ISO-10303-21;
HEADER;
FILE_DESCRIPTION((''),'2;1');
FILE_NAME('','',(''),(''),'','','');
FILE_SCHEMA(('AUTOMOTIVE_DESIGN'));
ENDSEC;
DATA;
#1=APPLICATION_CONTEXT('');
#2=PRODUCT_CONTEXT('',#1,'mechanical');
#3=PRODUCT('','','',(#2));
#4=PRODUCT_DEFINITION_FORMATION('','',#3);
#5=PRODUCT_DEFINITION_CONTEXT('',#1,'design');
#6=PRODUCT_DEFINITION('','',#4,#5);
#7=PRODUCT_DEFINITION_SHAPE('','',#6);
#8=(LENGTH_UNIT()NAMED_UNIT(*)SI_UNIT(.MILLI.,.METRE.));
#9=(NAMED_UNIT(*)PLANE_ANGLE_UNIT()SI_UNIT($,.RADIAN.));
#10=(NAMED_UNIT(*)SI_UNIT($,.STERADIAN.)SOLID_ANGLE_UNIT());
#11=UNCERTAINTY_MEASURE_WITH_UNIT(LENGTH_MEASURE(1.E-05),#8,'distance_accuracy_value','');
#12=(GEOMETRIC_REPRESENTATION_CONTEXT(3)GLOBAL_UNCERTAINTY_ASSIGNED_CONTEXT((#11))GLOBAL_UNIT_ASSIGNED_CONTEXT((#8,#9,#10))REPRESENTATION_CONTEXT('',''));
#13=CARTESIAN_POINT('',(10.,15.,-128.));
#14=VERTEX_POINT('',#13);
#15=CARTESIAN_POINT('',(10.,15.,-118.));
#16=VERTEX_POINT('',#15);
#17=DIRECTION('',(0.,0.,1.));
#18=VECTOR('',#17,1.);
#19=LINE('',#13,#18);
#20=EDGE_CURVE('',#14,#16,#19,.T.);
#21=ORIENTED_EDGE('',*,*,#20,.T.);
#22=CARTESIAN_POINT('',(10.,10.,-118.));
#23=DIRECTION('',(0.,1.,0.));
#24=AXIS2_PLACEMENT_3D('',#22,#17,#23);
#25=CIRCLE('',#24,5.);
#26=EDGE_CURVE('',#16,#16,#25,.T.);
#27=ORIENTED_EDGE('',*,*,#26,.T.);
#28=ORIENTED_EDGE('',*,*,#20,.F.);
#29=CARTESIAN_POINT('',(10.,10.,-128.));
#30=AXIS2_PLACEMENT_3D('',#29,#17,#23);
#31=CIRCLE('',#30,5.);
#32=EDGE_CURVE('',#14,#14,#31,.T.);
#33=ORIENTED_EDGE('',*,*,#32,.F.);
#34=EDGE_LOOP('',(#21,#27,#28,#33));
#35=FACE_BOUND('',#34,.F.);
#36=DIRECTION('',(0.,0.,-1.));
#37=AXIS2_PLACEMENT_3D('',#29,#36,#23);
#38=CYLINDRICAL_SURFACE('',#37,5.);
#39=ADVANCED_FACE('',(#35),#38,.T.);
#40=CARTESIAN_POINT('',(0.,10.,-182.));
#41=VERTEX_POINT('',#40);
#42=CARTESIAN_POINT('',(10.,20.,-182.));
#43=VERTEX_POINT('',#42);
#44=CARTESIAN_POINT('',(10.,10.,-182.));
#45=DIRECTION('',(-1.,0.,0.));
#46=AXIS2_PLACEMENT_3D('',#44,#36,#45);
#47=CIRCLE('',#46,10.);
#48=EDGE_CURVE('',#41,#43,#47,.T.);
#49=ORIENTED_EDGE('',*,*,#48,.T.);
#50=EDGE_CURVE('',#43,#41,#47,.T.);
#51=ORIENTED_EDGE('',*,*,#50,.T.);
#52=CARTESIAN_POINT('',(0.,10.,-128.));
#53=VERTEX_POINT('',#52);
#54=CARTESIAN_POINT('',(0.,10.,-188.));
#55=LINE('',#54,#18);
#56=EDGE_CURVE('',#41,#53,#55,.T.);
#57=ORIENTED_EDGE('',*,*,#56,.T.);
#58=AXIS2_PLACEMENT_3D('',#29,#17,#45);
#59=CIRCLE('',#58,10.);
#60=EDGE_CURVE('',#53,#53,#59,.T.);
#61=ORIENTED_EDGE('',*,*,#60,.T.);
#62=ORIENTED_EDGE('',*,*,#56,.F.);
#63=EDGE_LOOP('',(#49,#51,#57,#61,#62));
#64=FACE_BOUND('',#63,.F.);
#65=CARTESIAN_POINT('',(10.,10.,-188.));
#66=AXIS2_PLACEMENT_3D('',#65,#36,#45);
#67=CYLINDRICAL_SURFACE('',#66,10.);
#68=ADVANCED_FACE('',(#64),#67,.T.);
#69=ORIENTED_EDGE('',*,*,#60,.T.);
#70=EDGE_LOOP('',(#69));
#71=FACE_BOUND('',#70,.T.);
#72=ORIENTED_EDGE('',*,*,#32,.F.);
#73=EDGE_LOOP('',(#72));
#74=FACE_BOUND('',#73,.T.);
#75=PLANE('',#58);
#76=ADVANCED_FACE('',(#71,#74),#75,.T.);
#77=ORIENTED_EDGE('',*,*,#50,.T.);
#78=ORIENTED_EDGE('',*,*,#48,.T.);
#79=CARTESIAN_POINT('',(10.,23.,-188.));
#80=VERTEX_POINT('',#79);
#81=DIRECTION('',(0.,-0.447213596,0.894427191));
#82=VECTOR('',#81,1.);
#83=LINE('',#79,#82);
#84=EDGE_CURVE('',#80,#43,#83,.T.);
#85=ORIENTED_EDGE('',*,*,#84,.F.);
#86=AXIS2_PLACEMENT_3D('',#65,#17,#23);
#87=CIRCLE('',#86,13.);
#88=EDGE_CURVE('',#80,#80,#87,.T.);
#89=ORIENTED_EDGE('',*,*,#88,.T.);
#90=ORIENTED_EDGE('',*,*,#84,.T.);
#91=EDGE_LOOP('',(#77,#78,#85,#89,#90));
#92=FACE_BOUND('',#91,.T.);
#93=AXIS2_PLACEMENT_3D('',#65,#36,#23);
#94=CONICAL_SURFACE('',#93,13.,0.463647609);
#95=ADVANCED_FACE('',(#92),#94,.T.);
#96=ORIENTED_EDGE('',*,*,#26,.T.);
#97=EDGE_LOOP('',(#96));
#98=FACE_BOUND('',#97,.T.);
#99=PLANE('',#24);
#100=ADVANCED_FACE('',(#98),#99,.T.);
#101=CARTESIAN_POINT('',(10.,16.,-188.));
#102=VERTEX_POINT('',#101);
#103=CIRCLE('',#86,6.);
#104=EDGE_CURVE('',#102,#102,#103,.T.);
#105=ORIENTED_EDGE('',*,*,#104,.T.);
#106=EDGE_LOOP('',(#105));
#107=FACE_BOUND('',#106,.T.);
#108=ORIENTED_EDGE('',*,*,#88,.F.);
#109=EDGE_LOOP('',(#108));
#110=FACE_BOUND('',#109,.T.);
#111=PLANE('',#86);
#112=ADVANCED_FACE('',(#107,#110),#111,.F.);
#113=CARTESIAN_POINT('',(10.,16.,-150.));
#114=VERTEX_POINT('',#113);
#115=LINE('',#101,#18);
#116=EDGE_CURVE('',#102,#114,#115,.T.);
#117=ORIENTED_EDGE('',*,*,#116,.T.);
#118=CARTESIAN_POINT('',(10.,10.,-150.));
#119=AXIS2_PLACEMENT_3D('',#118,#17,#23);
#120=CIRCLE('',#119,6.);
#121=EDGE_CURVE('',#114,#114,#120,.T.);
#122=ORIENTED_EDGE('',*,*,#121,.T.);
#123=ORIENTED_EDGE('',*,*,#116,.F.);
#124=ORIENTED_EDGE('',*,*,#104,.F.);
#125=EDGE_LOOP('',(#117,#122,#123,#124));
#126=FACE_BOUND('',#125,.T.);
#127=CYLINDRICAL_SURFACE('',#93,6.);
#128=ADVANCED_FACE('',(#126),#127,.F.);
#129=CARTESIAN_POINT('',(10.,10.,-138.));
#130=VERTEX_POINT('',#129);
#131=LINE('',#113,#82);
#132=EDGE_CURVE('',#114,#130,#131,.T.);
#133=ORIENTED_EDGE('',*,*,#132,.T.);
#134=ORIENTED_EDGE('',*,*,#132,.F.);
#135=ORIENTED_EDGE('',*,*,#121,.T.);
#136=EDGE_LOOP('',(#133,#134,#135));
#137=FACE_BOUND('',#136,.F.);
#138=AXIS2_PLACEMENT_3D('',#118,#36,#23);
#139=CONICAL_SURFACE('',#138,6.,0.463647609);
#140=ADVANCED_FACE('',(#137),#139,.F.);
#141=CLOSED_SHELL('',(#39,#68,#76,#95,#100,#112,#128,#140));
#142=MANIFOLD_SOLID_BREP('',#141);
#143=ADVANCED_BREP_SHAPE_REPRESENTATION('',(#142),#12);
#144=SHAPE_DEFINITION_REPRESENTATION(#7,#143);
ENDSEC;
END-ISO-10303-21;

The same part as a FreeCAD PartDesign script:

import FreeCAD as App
import Part
import Sketcher

V = App.Vector


def add_polygon(sketch, points):
    """Adds a closed chain of lines whose ends are joined by coincident constraints."""
    first, n = sketch.GeometryCount, len(points)
    for a, b in zip(points, points[1:] + points[:1]):
        sketch.addGeometry(Part.LineSegment(App.Vector(*a, 0), App.Vector(*b, 0)), False)
    for i in range(n):
        sketch.addConstraint(Sketcher.Constraint("Coincident", first + i, 2, first + (i + 1) % n, 1))

doc = App.newDocument("Part")
body = doc.addObject("PartDesign::Body", "Body")

sketch1 = body.newObject("Sketcher::SketchObject", "Sketch")
sketch1.AttachmentSupport = (doc.getObject("XY_Plane"), [""])
sketch1.MapMode = "FlatFace"
sketch1.AttachmentOffset = App.Placement(V(0, 0, -127), App.Rotation())
sketch1.addGeometry(Part.Circle(V(10, 0, 0), V(0, 0, 1), 10), False)
sketch1.addConstraint(Sketcher.Constraint("PointOnObject", 0, 3, -1))
sketch1.addConstraint(Sketcher.Constraint("Diameter", 0, 20.0))
sketch1.addConstraint(Sketcher.Constraint("DistanceX", -1, 1, 0, 3, 10.0))
pad1 = body.newObject("PartDesign::Pad", "Pad")
pad1.Profile = sketch1
pad1.Length = 60

sketch2 = body.newObject("Sketcher::SketchObject", "Sketch001")
sketch2.AttachmentSupport = (doc.getObject("XZ_Plane"), [""])
sketch2.MapMode = "FlatFace"
add_polygon(sketch2, [(10, -127), (23, -127), (10, -101)])
sketch2.addGeometry(Part.LineSegment(V(10, -127, 0), V(10, -101, 0)), True)
sketch2.addConstraint(Sketcher.Constraint("Horizontal", 0))
sketch2.addConstraint(Sketcher.Constraint("Vertical", 2))
sketch2.addConstraint(Sketcher.Constraint("Vertical", 3))
sketch2.addConstraint(Sketcher.Constraint("Coincident", 3, 1, 2, 2))
sketch2.addConstraint(Sketcher.Constraint("Equal", 2, 3))
sketch2.addConstraint(Sketcher.Constraint("DistanceX", 0, 1, 0, 2, 13.0))
sketch2.addConstraint(Sketcher.Constraint("DistanceY", 2, 2, 2, 1, 26.0))
sketch2.addConstraint(Sketcher.Constraint("DistanceX", -1, 1, 0, 2, 23.0))
sketch2.addConstraint(Sketcher.Constraint("DistanceY", 0, 2, -1, 1, 127.0))
revolution = body.newObject("PartDesign::Revolution", "Revolution")
revolution.Profile = sketch2
revolution.ReferenceAxis = (sketch2, ["Axis0"])
revolution.Angle = 360

sketch3 = body.newObject("Sketcher::SketchObject", "Sketch002")
sketch3.AttachmentSupport = (doc.getObject("XY_Plane"), [""])
sketch3.MapMode = "FlatFace"
sketch3.AttachmentOffset = App.Placement(V(0, 0, -67), App.Rotation())
sketch3.addGeometry(Part.Circle(V(10, 0, 0), V(0, 0, 1), 5), False)
sketch3.addConstraint(Sketcher.Constraint("PointOnObject", 0, 3, -1))
sketch3.addConstraint(Sketcher.Constraint("Diameter", 0, 10.0))
sketch3.addConstraint(Sketcher.Constraint("DistanceX", -1, 1, 0, 3, 10.0))
pad2 = body.newObject("PartDesign::Pad", "Pad001")
pad2.Profile = sketch3
pad2.Length = 10

sketch4 = body.newObject("Sketcher::SketchObject", "Sketch003")
sketch4.AttachmentSupport = (doc.getObject("XY_Plane"), [""])
sketch4.MapMode = "FlatFace"
sketch4.AttachmentOffset = App.Placement(V(0, 0, -127), App.Rotation())
sketch4.addGeometry(Part.Circle(V(10, 0, 0), V(0, 0, 1), 6), False)
sketch4.addConstraint(Sketcher.Constraint("PointOnObject", 0, 3, -1))
sketch4.addConstraint(Sketcher.Constraint("Diameter", 0, 12.0))
sketch4.addConstraint(Sketcher.Constraint("DistanceX", -1, 1, 0, 3, 10.0))
pocket1 = body.newObject("PartDesign::Pocket", "Pocket")
pocket1.Profile = sketch4
pocket1.Length = 38
pocket1.Reversed = True

sketch5 = body.newObject("Sketcher::SketchObject", "Sketch004")
sketch5.AttachmentSupport = (doc.getObject("XZ_Plane"), [""])
sketch5.MapMode = "FlatFace"
add_polygon(sketch5, [(10, -89), (16, -89), (10, -77)])
sketch5.addGeometry(Part.LineSegment(V(10, -89, 0), V(10, -77, 0)), True)
sketch5.addConstraint(Sketcher.Constraint("Horizontal", 0))
sketch5.addConstraint(Sketcher.Constraint("Vertical", 2))
sketch5.addConstraint(Sketcher.Constraint("Vertical", 3))
sketch5.addConstraint(Sketcher.Constraint("Coincident", 3, 1, 2, 2))
sketch5.addConstraint(Sketcher.Constraint("Equal", 2, 3))
sketch5.addConstraint(Sketcher.Constraint("DistanceX", 0, 1, 0, 2, 6.0))
sketch5.addConstraint(Sketcher.Constraint("DistanceY", 2, 2, 2, 1, 12.0))
sketch5.addConstraint(Sketcher.Constraint("DistanceX", -1, 1, 0, 2, 16.0))
sketch5.addConstraint(Sketcher.Constraint("DistanceY", 0, 2, -1, 1, 89.0))
groove = body.newObject("PartDesign::Groove", "Groove")
groove.Profile = sketch5
groove.ReferenceAxis = (sketch5, ["Axis0"])
groove.Angle = 360
body2 = doc.addObject("PartDesign::Body", "Body001")
doc.recompute()

body.Placement = App.Placement(V(10, 0, -61), App.Rotation(V(0, 0, 1), 90))
boolean = body2.newObject("PartDesign::Boolean", "Boolean")
boolean.Type = "Fuse"
boolean.addObjects([body])

doc.recompute()
